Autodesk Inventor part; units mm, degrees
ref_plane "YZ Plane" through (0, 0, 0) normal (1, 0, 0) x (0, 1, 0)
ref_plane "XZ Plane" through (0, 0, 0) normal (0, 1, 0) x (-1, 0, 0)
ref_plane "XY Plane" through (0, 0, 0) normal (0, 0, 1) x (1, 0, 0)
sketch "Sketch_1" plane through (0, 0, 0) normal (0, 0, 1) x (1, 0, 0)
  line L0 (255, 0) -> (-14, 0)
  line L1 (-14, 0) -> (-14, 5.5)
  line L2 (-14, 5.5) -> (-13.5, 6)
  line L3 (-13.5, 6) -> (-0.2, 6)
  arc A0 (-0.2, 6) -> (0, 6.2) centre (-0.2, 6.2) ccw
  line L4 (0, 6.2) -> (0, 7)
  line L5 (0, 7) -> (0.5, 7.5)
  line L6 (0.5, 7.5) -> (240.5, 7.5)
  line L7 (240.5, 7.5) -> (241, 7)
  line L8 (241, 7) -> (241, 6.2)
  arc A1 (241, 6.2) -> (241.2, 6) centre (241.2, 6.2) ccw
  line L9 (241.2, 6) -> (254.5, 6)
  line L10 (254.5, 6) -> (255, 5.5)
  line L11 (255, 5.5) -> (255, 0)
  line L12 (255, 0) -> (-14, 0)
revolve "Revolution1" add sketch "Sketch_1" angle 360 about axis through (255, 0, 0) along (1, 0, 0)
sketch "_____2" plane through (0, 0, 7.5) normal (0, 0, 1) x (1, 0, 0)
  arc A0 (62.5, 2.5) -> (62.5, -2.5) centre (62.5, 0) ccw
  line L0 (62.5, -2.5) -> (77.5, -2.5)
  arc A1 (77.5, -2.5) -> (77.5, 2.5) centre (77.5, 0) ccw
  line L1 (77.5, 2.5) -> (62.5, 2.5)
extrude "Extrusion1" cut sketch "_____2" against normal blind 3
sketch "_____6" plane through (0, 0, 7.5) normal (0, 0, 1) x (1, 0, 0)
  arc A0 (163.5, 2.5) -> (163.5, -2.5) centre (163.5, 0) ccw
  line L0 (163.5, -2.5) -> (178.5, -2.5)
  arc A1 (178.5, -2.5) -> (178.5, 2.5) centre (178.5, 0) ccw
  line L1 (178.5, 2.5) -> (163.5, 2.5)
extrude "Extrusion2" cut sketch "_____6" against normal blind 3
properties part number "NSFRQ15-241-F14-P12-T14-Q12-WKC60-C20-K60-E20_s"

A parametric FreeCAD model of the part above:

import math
import FreeCAD as App
import Part
import Sketcher
from FreeCAD import Vector

doc = App.newDocument("Part")
body = doc.addObject("PartDesign::Body", "Body")

# Sketch on XY plane
sketch1 = body.newObject("Sketcher::SketchObject", "Sketch")
sketch1.AttachmentSupport = (doc.getObject("XY_Plane"), [""])
sketch1.MapMode = "FlatFace"
sketch1.addGeometry([
    Part.LineSegment(Vector(-14, 0, 0), Vector(255, 0, 0)),  # 0
    Part.LineSegment(Vector(255, 0, 0), Vector(255, 5.5, 0)),  # 1
    Part.LineSegment(Vector(255, 5.5, 0), Vector(254.5, 6, 0)),  # 2
    Part.LineSegment(Vector(254.5, 6, 0), Vector(241.2, 6, 0)),  # 3
    Part.ArcOfCircle(Part.Circle(Vector(241.2, 6.2, 0), Vector(0, 0, 1), 0.2), math.radians(180), math.radians(270)),  # 4
    Part.LineSegment(Vector(241, 6.2, 0), Vector(241, 7, 0)),  # 5
    Part.LineSegment(Vector(241, 7, 0), Vector(240.5, 7.5, 0)),  # 6
    Part.LineSegment(Vector(240.5, 7.5, 0), Vector(0.5, 7.5, 0)),  # 7
    Part.LineSegment(Vector(0.5, 7.5, 0), Vector(0, 7, 0)),  # 8
    Part.LineSegment(Vector(0, 7, 0), Vector(0, 6.2, 0)),  # 9
    Part.ArcOfCircle(Part.Circle(Vector(-0.2, 6.2, 0), Vector(0, 0, 1), 0.2), math.radians(-90), math.radians(0)),  # 10
    Part.LineSegment(Vector(-0.2, 6, 0), Vector(-13.5, 6, 0)),  # 11
    Part.LineSegment(Vector(-13.5, 6, 0), Vector(-14, 5.5, 0)),  # 12
    Part.LineSegment(Vector(-14, 5.5, 0), Vector(-14, 0, 0)),  # 13
], False)
sketch1.addConstraint([
    Sketcher.Constraint("Coincident", 0, 2, 1, 1),
    Sketcher.Constraint("Coincident", 1, 2, 2, 1),
    Sketcher.Constraint("Coincident", 2, 2, 3, 1),
    Sketcher.Constraint("Tangent", 3, 2, 4, 2),
    Sketcher.Constraint("Tangent", 4, 1, 5, 1),
    Sketcher.Constraint("Coincident", 5, 2, 6, 1),
    Sketcher.Constraint("Coincident", 6, 2, 7, 1),
    Sketcher.Constraint("Coincident", 7, 2, 8, 1),
    Sketcher.Constraint("Coincident", 8, 2, 9, 1),
    Sketcher.Constraint("Tangent", 9, 2, 10, 2),
    Sketcher.Constraint("Tangent", 10, 1, 11, 1),
    Sketcher.Constraint("Coincident", 11, 2, 12, 1),
    Sketcher.Constraint("Coincident", 12, 2, 13, 1),
    Sketcher.Constraint("Coincident", 13, 2, 0, 1),
    Sketcher.Constraint("Horizontal", 0),
    Sketcher.Constraint("Vertical", 1),
    Sketcher.Constraint("Horizontal", 3),
    Sketcher.Constraint("Vertical", 5),
    Sketcher.Constraint("Horizontal", 7),
    Sketcher.Constraint("Vertical", 9),
    Sketcher.Constraint("Horizontal", 11),
    Sketcher.Constraint("Vertical", 13),
    Sketcher.Constraint("Equal", 4, 10),
    Sketcher.Constraint("PointOnObject", 0, 2, -1),
    Sketcher.Constraint("PointOnObject", 8, 2, -2),
    Sketcher.Constraint("Parallel", 2, 6),
    Sketcher.Constraint("Perpendicular", 6, 8),
    Sketcher.Constraint("Parallel", 8, 12),
    Sketcher.Constraint("Horizontal", 4, 3, 10, 3),
    Sketcher.Constraint("Horizontal", 5, 2, 8, 2),
    Sketcher.Constraint("Horizontal", 1, 2, 12, 2),
    Sketcher.Constraint("Equal", 3, 11),
    Sketcher.Constraint("Equal", 2, 6),
    Sketcher.Constraint("Equal", 6, 8),
    Sketcher.Constraint("Radius", 4, 0.2),
    Sketcher.Constraint("DistanceX", 0, 1, 0, 2, 269.0),
    Sketcher.Constraint("DistanceX", 7, 2, 7, 1, 240.0),
    Sketcher.Constraint("DistanceX", 3, 2, 3, 1, 13.3),
    Sketcher.Constraint("DistanceY", 1, 1, 1, 2, 5.5),
    Sketcher.Constraint("DistanceY", 5, 1, 5, 2, 0.8),
])
revolution = body.newObject("PartDesign::Revolution", "Revolution")
revolution.Profile = sketch1
revolution.ReferenceAxis = (sketch1, ["H_Axis"])
revolution.Angle = 360

# Sketch on XY plane
sketch2 = body.newObject("Sketcher::SketchObject", "Sketch001")
sketch2.AttachmentSupport = (doc.getObject("XY_Plane"), [""])
sketch2.MapMode = "FlatFace"
sketch2.AttachmentOffset = App.Placement(Vector(0, 0, 7.5), App.Rotation())
sketch2.addGeometry([
    Part.LineSegment(Vector(77.5, 2.5, 0), Vector(62.5, 2.5, 0)),
    Part.ArcOfCircle(Part.Circle(Vector(62.5, 0, 0), Vector(0, 0, 1), 2.5), math.radians(90), math.radians(270)),
    Part.LineSegment(Vector(62.5, -2.5, 0), Vector(77.5, -2.5, 0)),
    Part.ArcOfCircle(Part.Circle(Vector(77.5, 0, 0), Vector(0, 0, 1), 2.5), math.radians(-90), math.radians(90)),
], False)
sketch2.addConstraint([
    Sketcher.Constraint("Tangent", 0, 2, 1, 1),
    Sketcher.Constraint("Tangent", 1, 2, 2, 1),
    Sketcher.Constraint("Tangent", 2, 2, 3, 1),
    Sketcher.Constraint("Tangent", 3, 2, 0, 1),
    Sketcher.Constraint("Horizontal", 0),
    Sketcher.Constraint("Horizontal", 2),
    Sketcher.Constraint("PointOnObject", 1, 3, -1),
    Sketcher.Constraint("Radius", 1, 2.5),
    Sketcher.Constraint("DistanceX", 0, 2, 0, 1, 15.0),
    Sketcher.Constraint("DistanceX", -1, 1, 1, 3, 62.5),
])
pocket1 = body.newObject("PartDesign::Pocket", "Pocket")
pocket1.Profile = sketch2
pocket1.Length = 3

# Sketch on XY plane
sketch3 = body.newObject("Sketcher::SketchObject", "Sketch002")
sketch3.AttachmentSupport = (doc.getObject("XY_Plane"), [""])
sketch3.MapMode = "FlatFace"
sketch3.AttachmentOffset = App.Placement(Vector(0, 0, 7.5), App.Rotation())
sketch3.addGeometry([
    Part.LineSegment(Vector(178.5, 2.5, 0), Vector(163.5, 2.5, 0)),
    Part.ArcOfCircle(Part.Circle(Vector(163.5, 0, 0), Vector(0, 0, 1), 2.5), math.radians(90), math.radians(270)),
    Part.LineSegment(Vector(163.5, -2.5, 0), Vector(178.5, -2.5, 0)),
    Part.ArcOfCircle(Part.Circle(Vector(178.5, 0, 0), Vector(0, 0, 1), 2.5), math.radians(-90), math.radians(90)),
], False)
sketch3.addConstraint([
    Sketcher.Constraint("Tangent", 0, 2, 1, 1),
    Sketcher.Constraint("Tangent", 1, 2, 2, 1),
    Sketcher.Constraint("Tangent", 2, 2, 3, 1),
    Sketcher.Constraint("Tangent", 3, 2, 0, 1),
    Sketcher.Constraint("Horizontal", 0),
    Sketcher.Constraint("Horizontal", 2),
    Sketcher.Constraint("PointOnObject", 1, 3, -1),
    Sketcher.Constraint("Radius", 1, 2.5),
    Sketcher.Constraint("DistanceX", 0, 2, 0, 1, 15.0),
    Sketcher.Constraint("DistanceX", -1, 1, 1, 3, 163.5),
])
pocket2 = body.newObject("PartDesign::Pocket", "Pocket001")
pocket2.Profile = sketch3
pocket2.Length = 3

doc.recompute()
